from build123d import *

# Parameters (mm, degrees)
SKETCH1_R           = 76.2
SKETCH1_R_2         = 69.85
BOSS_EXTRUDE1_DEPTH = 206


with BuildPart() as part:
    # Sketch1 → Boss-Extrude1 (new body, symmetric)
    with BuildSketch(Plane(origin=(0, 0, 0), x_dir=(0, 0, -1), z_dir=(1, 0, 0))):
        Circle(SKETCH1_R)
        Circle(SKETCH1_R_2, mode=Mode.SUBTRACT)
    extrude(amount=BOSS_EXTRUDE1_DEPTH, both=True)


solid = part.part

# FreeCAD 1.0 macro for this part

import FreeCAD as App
import Part
import Sketcher

V = App.Vector
Q = App.Units.Quantity

doc = App.newDocument("Part")
body = doc.addObject("PartDesign::Body", "Body")

# Sketch on YZ plane
sketch1 = body.newObject("Sketcher::SketchObject", "Sketch")
sketch1.AttachmentSupport = (doc.getObject("YZ_Plane"), [""])
sketch1.MapMode = "FlatFace"
sketch1.addGeometry([
    Part.Circle(V(0, 0, 0), V(0, 0, 1), 76.2),
    Part.Circle(V(0, 0, 0), V(0, 0, 1), 69.85),
], False)
sketch1.addConstraint([
    Sketcher.Constraint("Coincident", 0, 3, -1, 1),
    Sketcher.Constraint("Coincident", 1, 3, -1, 1),
    Sketcher.Constraint("Diameter", 0, Q("6 in")),
    Sketcher.Constraint("Diameter", 1, Q("5.5 in")),
])
pad1 = body.newObject("PartDesign::Pad", "Pad")
pad1.Profile = sketch1
pad1.Length = 412
pad1.Midplane = True

doc.recompute()
